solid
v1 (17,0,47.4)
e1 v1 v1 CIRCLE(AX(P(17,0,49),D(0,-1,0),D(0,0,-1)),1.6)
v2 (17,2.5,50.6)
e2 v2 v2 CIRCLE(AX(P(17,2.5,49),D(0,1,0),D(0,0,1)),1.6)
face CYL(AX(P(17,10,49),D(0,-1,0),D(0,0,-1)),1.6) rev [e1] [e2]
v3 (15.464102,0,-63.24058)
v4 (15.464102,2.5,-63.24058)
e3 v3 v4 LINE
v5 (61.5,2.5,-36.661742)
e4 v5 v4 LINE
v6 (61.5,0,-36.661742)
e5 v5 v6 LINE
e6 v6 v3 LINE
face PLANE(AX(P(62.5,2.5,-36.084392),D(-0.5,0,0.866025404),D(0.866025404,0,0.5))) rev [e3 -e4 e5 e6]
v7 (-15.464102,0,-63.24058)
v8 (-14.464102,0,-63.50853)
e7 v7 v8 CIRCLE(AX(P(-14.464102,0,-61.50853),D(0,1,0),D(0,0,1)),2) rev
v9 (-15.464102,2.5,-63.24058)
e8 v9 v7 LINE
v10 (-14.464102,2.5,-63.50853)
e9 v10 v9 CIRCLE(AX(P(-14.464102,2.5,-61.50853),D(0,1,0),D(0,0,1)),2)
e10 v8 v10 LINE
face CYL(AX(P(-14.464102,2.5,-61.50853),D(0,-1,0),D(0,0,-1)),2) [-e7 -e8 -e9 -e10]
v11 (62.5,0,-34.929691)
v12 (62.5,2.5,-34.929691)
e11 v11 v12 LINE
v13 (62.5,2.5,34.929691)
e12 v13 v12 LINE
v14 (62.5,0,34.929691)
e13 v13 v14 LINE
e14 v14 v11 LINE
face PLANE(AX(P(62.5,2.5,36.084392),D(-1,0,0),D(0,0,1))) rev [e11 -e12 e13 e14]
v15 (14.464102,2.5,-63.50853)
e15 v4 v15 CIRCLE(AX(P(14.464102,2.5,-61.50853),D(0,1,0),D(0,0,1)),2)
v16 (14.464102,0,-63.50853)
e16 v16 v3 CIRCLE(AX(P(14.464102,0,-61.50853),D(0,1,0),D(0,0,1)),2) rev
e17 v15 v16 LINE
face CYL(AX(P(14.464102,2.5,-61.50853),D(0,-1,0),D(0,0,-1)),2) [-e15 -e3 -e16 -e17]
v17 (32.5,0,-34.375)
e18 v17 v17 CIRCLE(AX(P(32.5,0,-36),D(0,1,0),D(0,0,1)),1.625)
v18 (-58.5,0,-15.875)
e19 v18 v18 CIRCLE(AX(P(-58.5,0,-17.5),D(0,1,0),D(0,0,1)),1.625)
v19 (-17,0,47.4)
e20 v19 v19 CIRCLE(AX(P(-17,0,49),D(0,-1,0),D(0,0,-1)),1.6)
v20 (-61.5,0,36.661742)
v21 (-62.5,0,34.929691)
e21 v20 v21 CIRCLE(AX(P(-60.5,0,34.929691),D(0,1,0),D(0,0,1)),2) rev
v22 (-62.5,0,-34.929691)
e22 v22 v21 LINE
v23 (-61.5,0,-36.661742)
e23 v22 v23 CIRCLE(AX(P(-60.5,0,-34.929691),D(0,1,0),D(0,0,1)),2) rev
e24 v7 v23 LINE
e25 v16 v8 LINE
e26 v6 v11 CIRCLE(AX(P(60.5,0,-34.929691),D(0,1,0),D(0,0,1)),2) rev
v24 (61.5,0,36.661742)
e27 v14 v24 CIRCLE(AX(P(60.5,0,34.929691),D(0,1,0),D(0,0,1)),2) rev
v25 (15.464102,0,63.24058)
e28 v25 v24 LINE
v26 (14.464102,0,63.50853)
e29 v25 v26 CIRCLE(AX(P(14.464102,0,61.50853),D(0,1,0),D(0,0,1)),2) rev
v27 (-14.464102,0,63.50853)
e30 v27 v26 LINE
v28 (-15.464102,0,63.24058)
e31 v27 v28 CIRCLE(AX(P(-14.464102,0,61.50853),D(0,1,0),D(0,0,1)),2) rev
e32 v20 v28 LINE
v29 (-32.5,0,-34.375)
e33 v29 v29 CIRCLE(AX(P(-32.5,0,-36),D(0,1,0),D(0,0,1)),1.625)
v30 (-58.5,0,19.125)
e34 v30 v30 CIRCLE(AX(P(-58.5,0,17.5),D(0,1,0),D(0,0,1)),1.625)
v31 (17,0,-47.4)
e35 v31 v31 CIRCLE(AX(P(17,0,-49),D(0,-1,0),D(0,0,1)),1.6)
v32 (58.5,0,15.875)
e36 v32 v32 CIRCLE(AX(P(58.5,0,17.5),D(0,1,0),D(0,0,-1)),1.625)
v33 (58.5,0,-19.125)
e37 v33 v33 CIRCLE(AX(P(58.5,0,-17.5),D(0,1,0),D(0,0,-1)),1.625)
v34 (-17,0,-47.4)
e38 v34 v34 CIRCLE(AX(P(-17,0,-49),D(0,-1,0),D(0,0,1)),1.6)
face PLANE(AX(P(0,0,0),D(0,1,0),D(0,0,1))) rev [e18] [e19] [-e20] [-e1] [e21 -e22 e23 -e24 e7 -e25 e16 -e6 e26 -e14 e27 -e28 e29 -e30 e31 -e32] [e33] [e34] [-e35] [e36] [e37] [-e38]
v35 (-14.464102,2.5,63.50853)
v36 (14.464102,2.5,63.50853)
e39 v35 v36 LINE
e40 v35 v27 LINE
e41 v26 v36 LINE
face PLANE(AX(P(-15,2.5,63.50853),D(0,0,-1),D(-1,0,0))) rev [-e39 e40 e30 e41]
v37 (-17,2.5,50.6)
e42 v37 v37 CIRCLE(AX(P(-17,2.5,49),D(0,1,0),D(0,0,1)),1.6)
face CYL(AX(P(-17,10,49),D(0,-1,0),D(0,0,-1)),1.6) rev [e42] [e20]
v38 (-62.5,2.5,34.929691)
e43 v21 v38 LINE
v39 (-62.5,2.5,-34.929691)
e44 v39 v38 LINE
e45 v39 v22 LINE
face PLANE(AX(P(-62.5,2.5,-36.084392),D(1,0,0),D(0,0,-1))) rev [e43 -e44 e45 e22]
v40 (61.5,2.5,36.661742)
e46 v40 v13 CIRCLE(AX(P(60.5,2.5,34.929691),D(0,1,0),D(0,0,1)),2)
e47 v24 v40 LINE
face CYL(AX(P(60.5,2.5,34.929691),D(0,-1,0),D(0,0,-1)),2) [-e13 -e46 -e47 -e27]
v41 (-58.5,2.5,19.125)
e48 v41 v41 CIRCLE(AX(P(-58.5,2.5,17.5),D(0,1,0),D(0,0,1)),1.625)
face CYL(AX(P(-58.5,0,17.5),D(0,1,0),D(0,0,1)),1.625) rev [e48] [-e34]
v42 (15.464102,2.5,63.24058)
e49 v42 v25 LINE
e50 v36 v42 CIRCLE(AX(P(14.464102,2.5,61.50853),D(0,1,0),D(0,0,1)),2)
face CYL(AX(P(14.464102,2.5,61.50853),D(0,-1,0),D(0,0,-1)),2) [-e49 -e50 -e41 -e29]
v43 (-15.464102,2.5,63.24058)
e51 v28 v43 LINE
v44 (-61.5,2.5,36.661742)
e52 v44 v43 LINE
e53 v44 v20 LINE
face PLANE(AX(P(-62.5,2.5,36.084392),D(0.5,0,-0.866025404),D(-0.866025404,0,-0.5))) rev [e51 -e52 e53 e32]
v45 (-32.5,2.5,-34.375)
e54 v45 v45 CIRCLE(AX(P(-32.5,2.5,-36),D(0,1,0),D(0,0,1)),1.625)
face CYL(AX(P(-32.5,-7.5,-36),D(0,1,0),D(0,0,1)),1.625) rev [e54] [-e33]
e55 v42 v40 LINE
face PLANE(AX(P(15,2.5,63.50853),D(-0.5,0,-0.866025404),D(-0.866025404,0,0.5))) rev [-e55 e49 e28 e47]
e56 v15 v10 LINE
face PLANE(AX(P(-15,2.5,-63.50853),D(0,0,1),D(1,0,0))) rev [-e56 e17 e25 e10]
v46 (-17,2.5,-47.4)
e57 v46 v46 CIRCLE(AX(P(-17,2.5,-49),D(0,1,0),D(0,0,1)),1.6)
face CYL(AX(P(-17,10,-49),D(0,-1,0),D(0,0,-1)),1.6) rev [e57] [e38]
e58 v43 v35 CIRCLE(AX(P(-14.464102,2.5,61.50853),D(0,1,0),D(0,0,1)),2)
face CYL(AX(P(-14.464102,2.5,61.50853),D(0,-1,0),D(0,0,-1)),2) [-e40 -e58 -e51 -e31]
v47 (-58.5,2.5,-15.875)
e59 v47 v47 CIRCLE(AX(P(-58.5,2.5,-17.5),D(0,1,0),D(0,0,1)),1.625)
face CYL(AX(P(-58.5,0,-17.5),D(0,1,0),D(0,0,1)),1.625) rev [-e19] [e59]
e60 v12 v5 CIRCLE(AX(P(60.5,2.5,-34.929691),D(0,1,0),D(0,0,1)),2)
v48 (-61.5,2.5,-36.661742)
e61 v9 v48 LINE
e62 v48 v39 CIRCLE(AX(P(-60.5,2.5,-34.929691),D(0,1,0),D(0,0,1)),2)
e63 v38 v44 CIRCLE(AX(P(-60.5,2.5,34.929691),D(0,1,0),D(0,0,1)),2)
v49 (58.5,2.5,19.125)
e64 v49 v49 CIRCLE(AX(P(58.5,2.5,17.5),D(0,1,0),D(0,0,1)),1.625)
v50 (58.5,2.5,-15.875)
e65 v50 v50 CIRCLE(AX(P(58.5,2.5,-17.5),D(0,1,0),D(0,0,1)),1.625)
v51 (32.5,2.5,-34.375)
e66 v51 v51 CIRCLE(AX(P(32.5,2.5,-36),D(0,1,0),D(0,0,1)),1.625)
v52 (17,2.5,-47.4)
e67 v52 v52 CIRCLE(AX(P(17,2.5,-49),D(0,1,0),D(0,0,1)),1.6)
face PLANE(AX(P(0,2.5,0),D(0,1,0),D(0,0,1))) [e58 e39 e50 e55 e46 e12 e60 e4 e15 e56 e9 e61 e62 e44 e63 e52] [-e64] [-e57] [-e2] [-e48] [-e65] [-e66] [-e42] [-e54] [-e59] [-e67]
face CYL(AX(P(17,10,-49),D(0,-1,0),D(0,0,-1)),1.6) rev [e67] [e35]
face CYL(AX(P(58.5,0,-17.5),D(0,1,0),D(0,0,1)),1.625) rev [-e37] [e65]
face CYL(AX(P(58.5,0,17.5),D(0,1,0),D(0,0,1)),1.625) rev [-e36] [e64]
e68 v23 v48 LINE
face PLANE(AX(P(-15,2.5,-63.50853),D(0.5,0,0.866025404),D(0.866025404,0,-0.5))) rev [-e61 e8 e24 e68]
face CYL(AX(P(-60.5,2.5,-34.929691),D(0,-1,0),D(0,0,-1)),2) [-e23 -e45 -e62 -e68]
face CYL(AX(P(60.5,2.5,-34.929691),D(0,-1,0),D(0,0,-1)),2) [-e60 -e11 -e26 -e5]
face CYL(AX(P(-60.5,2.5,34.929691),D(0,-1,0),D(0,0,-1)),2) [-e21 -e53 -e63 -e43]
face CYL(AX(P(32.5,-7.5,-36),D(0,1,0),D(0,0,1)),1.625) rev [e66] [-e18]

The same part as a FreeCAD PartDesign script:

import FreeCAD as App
import Part
import Sketcher
Q = App.Units.Quantity


def edges_at(feature, points):
    """Names of the edges that pass closest to the given points."""
    edges = feature.Shape.Edges
    near = lambda p: min(range(len(edges)), key=lambda i: edges[i].distToShape(Part.Vertex(*p))[0])
    return sorted({f"Edge{near(p) + 1}" for p in points})


def add_polygon(sketch, points):
    """Adds a closed chain of lines whose ends are joined by coincident constraints."""
    first, n = sketch.GeometryCount, len(points)
    for a, b in zip(points, points[1:] + points[:1]):
        sketch.addGeometry(Part.LineSegment(App.Vector(*a, 0), App.Vector(*b, 0)), False)
    for i in range(n):
        sketch.addConstraint(Sketcher.Constraint("Coincident", first + i, 2, first + (i + 1) % n, 1))

doc = App.newDocument("Part")
body = doc.addObject("PartDesign::Body", "Body")

# Sketch on XZ plane
sketch1 = body.newObject("Sketcher::SketchObject", "Sketch")
sketch1.AttachmentSupport = (doc.getObject("XZ_Plane"), [""])
sketch1.MapMode = "FlatFace"
add_polygon(sketch1, [(15, -64), (-15, -64), (-62, -36), (-62, 36), (-15, 64), (15, 64), (62, 36), (62, -36)])  # lines 0-7
sketch1.addConstraint(Sketcher.Constraint("Horizontal", 0))
sketch1.addConstraint(Sketcher.Constraint("Vertical", 2))
sketch1.addConstraint(Sketcher.Constraint("Horizontal", 4))
sketch1.addConstraint(Sketcher.Constraint("Vertical", 6))
sketch1.addConstraint(Sketcher.Constraint("Symmetric", 0, 2, 4, 2, -1, 1))
sketch1.addConstraint(Sketcher.Constraint("Symmetric", 1, 2, 5, 2, -1, 1))
sketch1.addConstraint(Sketcher.Constraint("Parallel", 3, 7))
sketch1.addConstraint(Sketcher.Constraint("Horizontal", 2, 2, 5, 2))
sketch1.addConstraint(Sketcher.Constraint("Horizontal", 1, 2, 6, 2))
sketch1.addConstraint(Sketcher.Constraint("Vertical", 0, 2, 3, 2))
sketch1.addConstraint(Sketcher.Constraint("DistanceX", 0, 2, 0, 1, Q("30 mm")))
sketch1.addConstraint(Sketcher.Constraint("Angle", 1, Q("150 deg")))
sketch1.addConstraint(Sketcher.Constraint("DistanceX", 2, 2, 5, 2, Q("125 mm")))
sketch1.addConstraint(Sketcher.Constraint("DistanceY", 2, 1, 2, 2, Q("72.168784 mm")))
pad1 = body.newObject("PartDesign::Pad", "Pad")
pad1.Profile = sketch1
pad1.Length = 2.5
pad1.Reversed = True

# Sketch on XZ plane
sketch2 = body.newObject("Sketcher::SketchObject", "Sketch001")
sketch2.AttachmentSupport = (doc.getObject("XZ_Plane"), [""])
sketch2.MapMode = "FlatFace"
sketch2.addGeometry(Part.Circle(App.Vector(17, 49, 0), App.Vector(0, 0, 1), 1.6), False)
sketch2.addGeometry(Part.Circle(App.Vector(-17, 49, 0), App.Vector(0, 0, 1), 1.6), False)
sketch2.addGeometry(Part.Circle(App.Vector(17, -49, 0), App.Vector(0, 0, 1), 1.6), False)
sketch2.addGeometry(Part.Circle(App.Vector(-17, -49, 0), App.Vector(0, 0, 1), 1.6), False)
sketch2.addConstraint(Sketcher.Constraint("Equal", 0, 1))
sketch2.addConstraint(Sketcher.Constraint("Equal", 1, 2))
sketch2.addConstraint(Sketcher.Constraint("Equal", 2, 3))
sketch2.addConstraint(Sketcher.Constraint("Symmetric", 1, 3, 2, 3, -1, 1))
sketch2.addConstraint(Sketcher.Constraint("Symmetric", 0, 3, 3, 3, -1, 1))
sketch2.addConstraint(Sketcher.Constraint("Symmetric", 0, 3, 1, 3, -2))
sketch2.addConstraint(Sketcher.Constraint("Diameter", 0, Q("3.2 mm")))
sketch2.addConstraint(Sketcher.Constraint("DistanceX", -1, 1, 0, 3, Q("17 mm")))
sketch2.addConstraint(Sketcher.Constraint("DistanceY", -1, 1, 0, 3, Q("49 mm")))
pocket1 = body.newObject("PartDesign::Pocket", "Pocket")
pocket1.Profile = sketch2
pocket1.Length = 10

# Sketch on XZ plane
sketch3 = body.newObject("Sketcher::SketchObject", "Sketch002")
sketch3.AttachmentSupport = (doc.getObject("XZ_Plane"), [""])
sketch3.MapMode = "FlatFace"
sketch3.AttachmentOffset = App.Placement(App.Vector(0, 0, -2.5), App.Rotation())
sketch3.addGeometry(Part.Circle(App.Vector(-32.5, -36, 0), App.Vector(0, 0, 1), 1.6), False)
sketch3.addGeometry(Part.Circle(App.Vector(32.5, -36, 0), App.Vector(0, 0, 1), 1.6), False)
sketch3.addConstraint(Sketcher.Constraint("Equal", 0, 1))
sketch3.addConstraint(Sketcher.Constraint("Symmetric", 0, 3, 1, 3, -2))
sketch3.addConstraint(Sketcher.Constraint("Diameter", 0, Q("3.25 mm")))
sketch3.addConstraint(Sketcher.Constraint("DistanceY", 0, 3, -1, 1, Q("36 mm")))
sketch3.addConstraint(Sketcher.Constraint("DistanceX", 0, 3, 1, 3, Q("65 mm")))
pocket2 = body.newObject("PartDesign::Pocket", "Pocket001")
pocket2.Profile = sketch3
pocket2.Length = 10
pocket2.Reversed = True

# Sketch on XZ plane
sketch4 = body.newObject("Sketcher::SketchObject", "Sketch003")
sketch4.AttachmentSupport = (doc.getObject("XZ_Plane"), [""])
sketch4.MapMode = "FlatFace"
sketch4.AttachmentOffset = App.Placement(App.Vector(0, 0, -2.5), App.Rotation())
sketch4.addGeometry(Part.Circle(App.Vector(-58.5, -17.5, 0), App.Vector(0, 0, 1), 1.6), False)
sketch4.addGeometry(Part.Circle(App.Vector(-58.5, 17.5, 0), App.Vector(0, 0, 1), 1.6), False)
sketch4.addGeometry(Part.Circle(App.Vector(58.5, 17.5, 0), App.Vector(0, 0, 1), 1.6), False)
sketch4.addGeometry(Part.Circle(App.Vector(58.5, -17.5, 0), App.Vector(0, 0, 1), 1.6), False)
sketch4.addConstraint(Sketcher.Constraint("Equal", 0, 1))
sketch4.addConstraint(Sketcher.Constraint("Equal", 1, 2))
sketch4.addConstraint(Sketcher.Constraint("Equal", 2, 3))
sketch4.addConstraint(Sketcher.Constraint("Symmetric", 0, 3, 2, 3, -1, 1))
sketch4.addConstraint(Sketcher.Constraint("Symmetric", 1, 3, 3, 3, -1, 1))
sketch4.addConstraint(Sketcher.Constraint("Symmetric", 1, 3, 2, 3, -2))
sketch4.addConstraint(Sketcher.Constraint("Diameter", 0, Q("3.25 mm")))
sketch4.addConstraint(Sketcher.Constraint("DistanceY", 0, 3, 1, 3, Q("35 mm")))
sketch4.addConstraint(Sketcher.Constraint("DistanceX", 1, 3, 2, 3, Q("117 mm")))
pocket3 = body.newObject("PartDesign::Pocket", "Pocket002")
pocket3.Profile = sketch4
pocket3.Type = "ThroughAll"
pocket3.Midplane = True
doc.recompute()

fillet = body.newObject("PartDesign::Fillet", "Fillet")
fillet.Base = (pocket3, edges_at(pocket3, [
    (-15, 1.25, -63.509),
    (15, 1.25, -63.509),
    (62.5, 1.25, -36.084),
    (62.5, 1.25, 36.084),
    (15, 1.25, 63.509),
    (-15, 1.25, 63.509),
    (-62.5, 1.25, 36.084),
    (-62.5, 1.25, -36.084),
]))
fillet.Radius = 2

doc.recompute()
